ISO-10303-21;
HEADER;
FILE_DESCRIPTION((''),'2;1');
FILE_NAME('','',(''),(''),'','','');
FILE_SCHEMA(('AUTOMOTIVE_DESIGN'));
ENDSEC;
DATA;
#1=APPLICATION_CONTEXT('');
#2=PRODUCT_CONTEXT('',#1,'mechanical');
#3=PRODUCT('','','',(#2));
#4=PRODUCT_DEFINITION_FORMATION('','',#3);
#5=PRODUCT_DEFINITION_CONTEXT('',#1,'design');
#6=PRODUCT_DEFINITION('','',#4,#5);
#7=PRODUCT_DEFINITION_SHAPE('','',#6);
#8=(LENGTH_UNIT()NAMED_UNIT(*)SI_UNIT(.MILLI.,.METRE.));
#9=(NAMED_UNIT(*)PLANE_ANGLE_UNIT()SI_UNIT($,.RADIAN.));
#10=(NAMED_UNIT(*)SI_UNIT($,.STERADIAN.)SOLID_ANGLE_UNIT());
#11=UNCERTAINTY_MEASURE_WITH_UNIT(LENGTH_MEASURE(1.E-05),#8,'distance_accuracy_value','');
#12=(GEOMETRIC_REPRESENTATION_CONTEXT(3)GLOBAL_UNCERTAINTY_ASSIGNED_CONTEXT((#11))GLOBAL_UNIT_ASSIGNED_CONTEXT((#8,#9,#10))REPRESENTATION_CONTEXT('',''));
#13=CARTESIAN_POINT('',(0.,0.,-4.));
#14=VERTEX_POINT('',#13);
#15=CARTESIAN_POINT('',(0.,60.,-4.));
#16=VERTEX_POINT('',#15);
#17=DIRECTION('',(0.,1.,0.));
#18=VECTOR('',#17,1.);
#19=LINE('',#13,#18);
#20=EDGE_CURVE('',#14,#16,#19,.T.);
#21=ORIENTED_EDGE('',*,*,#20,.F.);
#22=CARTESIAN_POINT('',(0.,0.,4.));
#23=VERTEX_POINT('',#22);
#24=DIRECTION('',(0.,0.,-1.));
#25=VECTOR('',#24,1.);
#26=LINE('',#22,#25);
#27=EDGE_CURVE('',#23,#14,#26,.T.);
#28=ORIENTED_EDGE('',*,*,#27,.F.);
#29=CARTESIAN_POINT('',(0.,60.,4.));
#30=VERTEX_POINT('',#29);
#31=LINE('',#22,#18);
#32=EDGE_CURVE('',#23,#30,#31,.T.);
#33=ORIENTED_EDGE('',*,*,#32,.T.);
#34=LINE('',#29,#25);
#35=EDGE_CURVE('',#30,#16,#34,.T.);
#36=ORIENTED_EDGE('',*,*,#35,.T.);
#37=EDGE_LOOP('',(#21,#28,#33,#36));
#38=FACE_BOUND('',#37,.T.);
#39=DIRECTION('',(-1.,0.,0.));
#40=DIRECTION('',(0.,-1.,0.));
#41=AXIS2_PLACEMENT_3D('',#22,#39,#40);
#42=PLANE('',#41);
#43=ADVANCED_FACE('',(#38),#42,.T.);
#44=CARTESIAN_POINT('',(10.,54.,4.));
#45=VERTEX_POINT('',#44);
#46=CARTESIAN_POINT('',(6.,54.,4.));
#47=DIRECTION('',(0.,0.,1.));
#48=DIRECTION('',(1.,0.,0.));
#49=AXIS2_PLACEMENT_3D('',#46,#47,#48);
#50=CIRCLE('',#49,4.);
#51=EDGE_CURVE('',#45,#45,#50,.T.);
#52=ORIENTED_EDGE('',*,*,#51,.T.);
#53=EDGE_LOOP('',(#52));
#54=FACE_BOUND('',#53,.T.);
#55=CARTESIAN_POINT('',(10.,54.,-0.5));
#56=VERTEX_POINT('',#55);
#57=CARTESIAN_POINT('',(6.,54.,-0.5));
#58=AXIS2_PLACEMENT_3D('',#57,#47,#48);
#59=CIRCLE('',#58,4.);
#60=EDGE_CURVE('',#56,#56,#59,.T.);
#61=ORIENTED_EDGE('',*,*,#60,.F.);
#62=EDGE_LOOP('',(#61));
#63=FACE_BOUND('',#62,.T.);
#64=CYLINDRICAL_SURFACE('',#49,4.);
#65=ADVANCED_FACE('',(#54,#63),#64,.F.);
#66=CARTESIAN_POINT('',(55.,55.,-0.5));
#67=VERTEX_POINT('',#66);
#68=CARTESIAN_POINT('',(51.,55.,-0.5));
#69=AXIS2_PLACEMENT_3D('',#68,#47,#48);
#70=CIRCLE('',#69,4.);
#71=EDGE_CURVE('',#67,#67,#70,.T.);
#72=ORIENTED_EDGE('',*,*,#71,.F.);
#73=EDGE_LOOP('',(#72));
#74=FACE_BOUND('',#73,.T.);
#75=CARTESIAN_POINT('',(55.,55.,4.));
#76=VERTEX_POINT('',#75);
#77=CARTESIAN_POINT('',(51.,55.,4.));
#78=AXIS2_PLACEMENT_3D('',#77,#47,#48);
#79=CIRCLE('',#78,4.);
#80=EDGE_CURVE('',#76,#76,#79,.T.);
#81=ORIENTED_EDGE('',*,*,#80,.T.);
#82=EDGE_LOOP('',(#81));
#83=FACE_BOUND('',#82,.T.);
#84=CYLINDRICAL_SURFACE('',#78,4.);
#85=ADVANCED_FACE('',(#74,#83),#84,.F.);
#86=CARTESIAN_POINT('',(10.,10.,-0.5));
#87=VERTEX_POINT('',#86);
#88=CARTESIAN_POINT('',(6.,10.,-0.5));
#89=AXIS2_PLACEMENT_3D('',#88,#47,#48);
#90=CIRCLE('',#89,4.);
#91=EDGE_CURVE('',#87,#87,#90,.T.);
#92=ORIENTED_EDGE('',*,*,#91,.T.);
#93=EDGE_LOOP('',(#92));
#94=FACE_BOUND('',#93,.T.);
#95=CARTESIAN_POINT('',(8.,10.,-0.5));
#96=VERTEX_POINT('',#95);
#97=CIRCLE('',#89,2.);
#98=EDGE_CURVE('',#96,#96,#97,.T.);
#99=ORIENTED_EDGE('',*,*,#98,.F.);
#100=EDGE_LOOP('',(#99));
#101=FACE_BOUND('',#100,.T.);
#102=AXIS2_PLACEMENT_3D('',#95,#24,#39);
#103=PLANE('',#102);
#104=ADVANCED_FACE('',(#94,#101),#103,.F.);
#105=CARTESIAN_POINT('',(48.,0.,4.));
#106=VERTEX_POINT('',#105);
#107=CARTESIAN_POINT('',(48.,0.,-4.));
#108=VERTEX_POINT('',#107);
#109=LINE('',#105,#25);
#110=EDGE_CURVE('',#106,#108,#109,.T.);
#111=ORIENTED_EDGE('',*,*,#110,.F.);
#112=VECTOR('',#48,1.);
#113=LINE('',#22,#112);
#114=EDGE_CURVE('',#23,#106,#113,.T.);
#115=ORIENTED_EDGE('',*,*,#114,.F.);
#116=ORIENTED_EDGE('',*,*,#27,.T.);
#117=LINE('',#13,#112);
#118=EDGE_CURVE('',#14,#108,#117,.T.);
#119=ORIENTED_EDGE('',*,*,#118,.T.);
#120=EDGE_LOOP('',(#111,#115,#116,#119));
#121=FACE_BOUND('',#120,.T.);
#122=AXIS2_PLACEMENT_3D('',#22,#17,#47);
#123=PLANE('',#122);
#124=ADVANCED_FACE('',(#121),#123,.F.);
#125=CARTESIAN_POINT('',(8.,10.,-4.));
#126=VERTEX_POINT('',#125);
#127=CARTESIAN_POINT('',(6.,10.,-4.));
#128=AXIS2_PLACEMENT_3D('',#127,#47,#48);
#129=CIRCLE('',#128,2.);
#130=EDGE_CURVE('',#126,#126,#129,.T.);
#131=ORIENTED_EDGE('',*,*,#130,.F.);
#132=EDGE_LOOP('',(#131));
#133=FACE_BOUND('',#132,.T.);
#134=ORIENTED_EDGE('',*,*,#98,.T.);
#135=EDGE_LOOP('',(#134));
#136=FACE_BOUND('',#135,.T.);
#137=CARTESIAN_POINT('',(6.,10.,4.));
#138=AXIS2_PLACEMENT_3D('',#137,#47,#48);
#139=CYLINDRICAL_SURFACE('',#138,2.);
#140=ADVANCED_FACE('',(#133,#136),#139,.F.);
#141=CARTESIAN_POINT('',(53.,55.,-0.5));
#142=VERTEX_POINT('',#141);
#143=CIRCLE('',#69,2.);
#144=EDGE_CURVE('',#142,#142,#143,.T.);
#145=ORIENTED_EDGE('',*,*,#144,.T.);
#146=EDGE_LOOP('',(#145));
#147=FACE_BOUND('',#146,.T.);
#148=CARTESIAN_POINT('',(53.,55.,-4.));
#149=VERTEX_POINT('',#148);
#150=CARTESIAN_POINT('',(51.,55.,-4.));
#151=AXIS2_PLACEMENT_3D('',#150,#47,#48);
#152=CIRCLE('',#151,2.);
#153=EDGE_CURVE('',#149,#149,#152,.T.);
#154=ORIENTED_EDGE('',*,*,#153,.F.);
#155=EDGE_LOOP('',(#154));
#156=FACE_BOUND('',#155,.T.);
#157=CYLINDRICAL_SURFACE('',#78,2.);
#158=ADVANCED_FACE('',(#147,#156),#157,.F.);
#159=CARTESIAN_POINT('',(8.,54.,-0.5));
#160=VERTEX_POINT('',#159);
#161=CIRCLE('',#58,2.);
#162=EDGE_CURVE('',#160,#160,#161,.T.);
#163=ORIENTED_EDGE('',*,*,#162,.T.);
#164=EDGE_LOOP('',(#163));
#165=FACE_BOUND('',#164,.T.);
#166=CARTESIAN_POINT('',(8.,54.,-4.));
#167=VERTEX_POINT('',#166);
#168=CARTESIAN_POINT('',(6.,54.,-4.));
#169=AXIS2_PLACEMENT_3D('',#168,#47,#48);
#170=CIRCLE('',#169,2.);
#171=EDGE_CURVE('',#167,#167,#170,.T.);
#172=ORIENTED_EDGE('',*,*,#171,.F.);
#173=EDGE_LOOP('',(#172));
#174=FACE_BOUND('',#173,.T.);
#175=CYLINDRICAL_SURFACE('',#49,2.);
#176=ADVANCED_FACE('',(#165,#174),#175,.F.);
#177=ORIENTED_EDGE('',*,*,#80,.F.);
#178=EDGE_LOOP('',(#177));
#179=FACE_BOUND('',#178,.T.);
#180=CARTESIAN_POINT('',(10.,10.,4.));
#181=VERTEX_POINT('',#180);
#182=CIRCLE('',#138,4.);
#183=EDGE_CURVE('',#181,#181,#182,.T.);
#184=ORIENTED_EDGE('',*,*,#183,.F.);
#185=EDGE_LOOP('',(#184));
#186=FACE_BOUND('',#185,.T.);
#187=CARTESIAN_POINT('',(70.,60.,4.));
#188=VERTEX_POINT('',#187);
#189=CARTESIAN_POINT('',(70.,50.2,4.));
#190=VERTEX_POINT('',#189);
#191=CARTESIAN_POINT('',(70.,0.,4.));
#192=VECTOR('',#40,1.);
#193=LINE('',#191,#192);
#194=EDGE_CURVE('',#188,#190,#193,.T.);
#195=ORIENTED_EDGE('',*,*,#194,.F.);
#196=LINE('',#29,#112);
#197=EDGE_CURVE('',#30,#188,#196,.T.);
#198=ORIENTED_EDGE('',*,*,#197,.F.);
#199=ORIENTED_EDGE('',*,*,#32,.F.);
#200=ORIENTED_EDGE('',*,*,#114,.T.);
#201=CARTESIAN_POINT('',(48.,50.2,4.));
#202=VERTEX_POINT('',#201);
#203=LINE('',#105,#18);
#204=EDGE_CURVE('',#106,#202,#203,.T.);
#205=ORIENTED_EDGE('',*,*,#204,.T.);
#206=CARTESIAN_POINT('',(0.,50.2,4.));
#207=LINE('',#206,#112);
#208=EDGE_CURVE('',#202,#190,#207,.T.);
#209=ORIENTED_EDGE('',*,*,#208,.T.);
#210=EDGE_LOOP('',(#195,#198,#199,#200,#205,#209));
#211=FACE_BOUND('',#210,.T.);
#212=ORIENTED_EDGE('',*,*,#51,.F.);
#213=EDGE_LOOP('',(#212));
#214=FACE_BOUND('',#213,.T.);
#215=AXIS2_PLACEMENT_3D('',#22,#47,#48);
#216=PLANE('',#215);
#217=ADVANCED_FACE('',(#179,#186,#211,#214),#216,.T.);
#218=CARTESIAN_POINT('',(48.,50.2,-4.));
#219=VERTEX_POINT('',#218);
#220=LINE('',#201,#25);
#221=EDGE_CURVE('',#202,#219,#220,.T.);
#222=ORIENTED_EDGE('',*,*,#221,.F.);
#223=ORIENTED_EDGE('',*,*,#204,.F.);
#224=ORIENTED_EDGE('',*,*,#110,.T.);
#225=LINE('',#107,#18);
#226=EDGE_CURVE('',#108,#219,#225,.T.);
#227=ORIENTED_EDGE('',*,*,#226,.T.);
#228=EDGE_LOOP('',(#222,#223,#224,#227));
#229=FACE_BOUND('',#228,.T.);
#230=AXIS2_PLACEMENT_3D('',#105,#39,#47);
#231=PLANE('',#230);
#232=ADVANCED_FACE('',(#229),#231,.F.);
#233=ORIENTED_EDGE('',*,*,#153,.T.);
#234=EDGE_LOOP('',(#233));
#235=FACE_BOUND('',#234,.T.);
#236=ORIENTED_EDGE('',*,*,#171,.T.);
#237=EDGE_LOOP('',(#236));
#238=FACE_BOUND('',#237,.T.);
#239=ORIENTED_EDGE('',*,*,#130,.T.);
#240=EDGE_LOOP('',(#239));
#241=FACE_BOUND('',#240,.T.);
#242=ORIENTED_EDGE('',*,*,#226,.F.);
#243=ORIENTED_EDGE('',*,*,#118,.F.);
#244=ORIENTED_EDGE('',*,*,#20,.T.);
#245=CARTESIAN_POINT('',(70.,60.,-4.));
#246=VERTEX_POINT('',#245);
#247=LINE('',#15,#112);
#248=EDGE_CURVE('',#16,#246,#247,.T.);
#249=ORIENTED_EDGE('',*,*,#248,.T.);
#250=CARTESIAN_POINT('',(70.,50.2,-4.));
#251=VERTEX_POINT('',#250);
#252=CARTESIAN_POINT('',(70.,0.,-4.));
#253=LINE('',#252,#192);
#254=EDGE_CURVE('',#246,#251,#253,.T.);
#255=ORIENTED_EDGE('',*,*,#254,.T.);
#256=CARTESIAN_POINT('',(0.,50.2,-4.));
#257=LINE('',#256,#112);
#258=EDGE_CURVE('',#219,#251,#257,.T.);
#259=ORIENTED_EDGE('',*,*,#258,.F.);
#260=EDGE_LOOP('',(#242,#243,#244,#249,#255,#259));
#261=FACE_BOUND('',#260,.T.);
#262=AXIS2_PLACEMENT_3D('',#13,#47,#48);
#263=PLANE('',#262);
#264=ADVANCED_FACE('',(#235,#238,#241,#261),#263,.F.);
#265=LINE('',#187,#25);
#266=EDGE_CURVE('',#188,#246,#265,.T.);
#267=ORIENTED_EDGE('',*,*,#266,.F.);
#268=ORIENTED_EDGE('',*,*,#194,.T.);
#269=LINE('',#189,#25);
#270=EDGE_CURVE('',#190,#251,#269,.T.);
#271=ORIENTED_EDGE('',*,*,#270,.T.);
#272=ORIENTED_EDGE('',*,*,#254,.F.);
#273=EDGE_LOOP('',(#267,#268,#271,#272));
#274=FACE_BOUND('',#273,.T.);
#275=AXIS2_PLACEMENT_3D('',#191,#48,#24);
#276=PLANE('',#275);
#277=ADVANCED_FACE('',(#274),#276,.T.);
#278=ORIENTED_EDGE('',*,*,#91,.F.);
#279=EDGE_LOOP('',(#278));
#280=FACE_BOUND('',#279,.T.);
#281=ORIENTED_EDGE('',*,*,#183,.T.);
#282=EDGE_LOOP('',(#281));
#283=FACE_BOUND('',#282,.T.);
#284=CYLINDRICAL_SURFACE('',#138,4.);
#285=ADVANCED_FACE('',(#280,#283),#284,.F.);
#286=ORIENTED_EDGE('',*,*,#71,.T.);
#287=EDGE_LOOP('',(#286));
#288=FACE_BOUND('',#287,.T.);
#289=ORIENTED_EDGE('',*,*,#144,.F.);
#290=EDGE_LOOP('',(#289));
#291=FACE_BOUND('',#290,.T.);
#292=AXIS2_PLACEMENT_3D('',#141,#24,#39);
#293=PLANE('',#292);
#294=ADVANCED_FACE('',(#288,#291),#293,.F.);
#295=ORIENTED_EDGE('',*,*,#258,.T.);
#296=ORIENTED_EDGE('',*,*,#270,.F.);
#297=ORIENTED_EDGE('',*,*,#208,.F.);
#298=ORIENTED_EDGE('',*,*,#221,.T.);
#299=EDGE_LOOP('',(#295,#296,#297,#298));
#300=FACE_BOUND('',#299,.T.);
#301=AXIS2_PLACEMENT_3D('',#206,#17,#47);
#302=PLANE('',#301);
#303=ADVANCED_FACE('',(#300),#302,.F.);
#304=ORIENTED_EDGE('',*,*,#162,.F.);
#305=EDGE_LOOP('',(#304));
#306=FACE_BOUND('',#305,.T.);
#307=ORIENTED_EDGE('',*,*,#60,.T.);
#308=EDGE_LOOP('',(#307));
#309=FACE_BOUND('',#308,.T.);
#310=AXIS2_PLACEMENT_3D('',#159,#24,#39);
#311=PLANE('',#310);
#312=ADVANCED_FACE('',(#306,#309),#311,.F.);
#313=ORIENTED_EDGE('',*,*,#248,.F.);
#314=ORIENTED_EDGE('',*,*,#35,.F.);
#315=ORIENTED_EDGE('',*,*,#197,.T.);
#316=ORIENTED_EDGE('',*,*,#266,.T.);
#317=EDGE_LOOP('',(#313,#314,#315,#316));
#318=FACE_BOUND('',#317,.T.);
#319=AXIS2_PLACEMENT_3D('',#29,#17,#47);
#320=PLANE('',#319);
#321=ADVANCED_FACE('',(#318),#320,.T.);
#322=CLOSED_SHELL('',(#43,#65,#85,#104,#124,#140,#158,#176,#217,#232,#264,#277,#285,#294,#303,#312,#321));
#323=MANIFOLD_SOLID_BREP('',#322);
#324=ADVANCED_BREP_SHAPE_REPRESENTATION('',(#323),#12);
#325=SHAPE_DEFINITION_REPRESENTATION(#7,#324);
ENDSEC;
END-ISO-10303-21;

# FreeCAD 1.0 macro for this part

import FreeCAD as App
import Part
import Sketcher

V = App.Vector

doc = App.newDocument("Part")
body = doc.addObject("PartDesign::Body", "Body")

sketch1 = body.newObject("Sketcher::SketchObject", "Sketch")
sketch1.AttachmentSupport = (doc.getObject("XY_Plane"), [""])
sketch1.MapMode = "FlatFace"
sketch1.addGeometry(Part.LineSegment(V(0, 0, 0), V(48, 0, 0)), False)
sketch1.addGeometry(Part.LineSegment(V(48, 0, 0), V(48, 50.2, 0)), False)
sketch1.addGeometry(Part.LineSegment(V(48, 50.2, 0), V(70, 50.2, 0)), False)
sketch1.addGeometry(Part.LineSegment(V(70, 50.2, 0), V(70, 60, 0)), False)
sketch1.addGeometry(Part.LineSegment(V(70, 60, 0), V(0, 60, 0)), False)
sketch1.addGeometry(Part.LineSegment(V(0, 60, 0), V(0, 0, 0)), False)
sketch1.addConstraint(Sketcher.Constraint("Coincident", 0, 2, 1, 1))
sketch1.addConstraint(Sketcher.Constraint("Coincident", 1, 2, 2, 1))
sketch1.addConstraint(Sketcher.Constraint("Coincident", 2, 2, 3, 1))
sketch1.addConstraint(Sketcher.Constraint("Coincident", 3, 2, 4, 1))
sketch1.addConstraint(Sketcher.Constraint("Coincident", 4, 2, 5, 1))
sketch1.addConstraint(Sketcher.Constraint("Coincident", 5, 2, 0, 1))
sketch1.addConstraint(Sketcher.Constraint("Horizontal", 0))
sketch1.addConstraint(Sketcher.Constraint("Vertical", 1))
sketch1.addConstraint(Sketcher.Constraint("Horizontal", 2))
sketch1.addConstraint(Sketcher.Constraint("Vertical", 3))
sketch1.addConstraint(Sketcher.Constraint("Horizontal", 4))
sketch1.addConstraint(Sketcher.Constraint("Vertical", 5))
sketch1.addConstraint(Sketcher.Constraint("Coincident", 5, 2, -1, 1))
sketch1.addConstraint(Sketcher.Constraint("DistanceX", 0, 1, 0, 2, 48.0))
sketch1.addConstraint(Sketcher.Constraint("DistanceX", 2, 1, 2, 2, 22.0))
sketch1.addConstraint(Sketcher.Constraint("DistanceY", 5, 2, 5, 1, 60.0))
sketch1.addConstraint(Sketcher.Constraint("DistanceY", 1, 1, 1, 2, 50.2))
pad1 = body.newObject("PartDesign::Pad", "Pad")
pad1.Profile = sketch1
pad1.Length = 8
pad1.Midplane = True

sketch2 = body.newObject("Sketcher::SketchObject", "Sketch001")
sketch2.AttachmentSupport = (doc.getObject("XY_Plane"), [""])
sketch2.MapMode = "FlatFace"
sketch2.AttachmentOffset = App.Placement(V(0, 0, 4), App.Rotation())
sketch2.addGeometry(Part.Circle(V(6, 10, 0), V(0, 0, 1), 2), False)
sketch2.addGeometry(Part.Circle(V(6, 54, 0), V(0, 0, 1), 2), False)
sketch2.addGeometry(Part.Circle(V(51, 55, 0), V(0, 0, 1), 2), False)
sketch2.addConstraint(Sketcher.Constraint("Equal", 0, 1))
sketch2.addConstraint(Sketcher.Constraint("Equal", 1, 2))
sketch2.addConstraint(Sketcher.Constraint("Vertical", 0, 3, 1, 3))
sketch2.addConstraint(Sketcher.Constraint("Diameter", 0, 4.0))
sketch2.addConstraint(Sketcher.Constraint("DistanceX", -1, 1, 0, 3, 6.0))
sketch2.addConstraint(Sketcher.Constraint("DistanceY", -1, 1, 0, 3, 10.0))
sketch2.addConstraint(Sketcher.Constraint("DistanceY", -1, 1, 1, 3, 54.0))
sketch2.addConstraint(Sketcher.Constraint("DistanceX", -1, 1, 2, 3, 51.0))
sketch2.addConstraint(Sketcher.Constraint("DistanceY", -1, 1, 2, 3, 55.0))
doc.recompute()
hole = body.newObject("PartDesign::Hole", "Hole")
hole.Profile = sketch2
hole.ThreadType = "None"
hole.Diameter = 4
hole.DepthType = "ThroughAll"
hole.HoleCutType = "Counterbore"
hole.HoleCutDiameter = 8
hole.HoleCutDepth = 4.5

doc.recompute()
